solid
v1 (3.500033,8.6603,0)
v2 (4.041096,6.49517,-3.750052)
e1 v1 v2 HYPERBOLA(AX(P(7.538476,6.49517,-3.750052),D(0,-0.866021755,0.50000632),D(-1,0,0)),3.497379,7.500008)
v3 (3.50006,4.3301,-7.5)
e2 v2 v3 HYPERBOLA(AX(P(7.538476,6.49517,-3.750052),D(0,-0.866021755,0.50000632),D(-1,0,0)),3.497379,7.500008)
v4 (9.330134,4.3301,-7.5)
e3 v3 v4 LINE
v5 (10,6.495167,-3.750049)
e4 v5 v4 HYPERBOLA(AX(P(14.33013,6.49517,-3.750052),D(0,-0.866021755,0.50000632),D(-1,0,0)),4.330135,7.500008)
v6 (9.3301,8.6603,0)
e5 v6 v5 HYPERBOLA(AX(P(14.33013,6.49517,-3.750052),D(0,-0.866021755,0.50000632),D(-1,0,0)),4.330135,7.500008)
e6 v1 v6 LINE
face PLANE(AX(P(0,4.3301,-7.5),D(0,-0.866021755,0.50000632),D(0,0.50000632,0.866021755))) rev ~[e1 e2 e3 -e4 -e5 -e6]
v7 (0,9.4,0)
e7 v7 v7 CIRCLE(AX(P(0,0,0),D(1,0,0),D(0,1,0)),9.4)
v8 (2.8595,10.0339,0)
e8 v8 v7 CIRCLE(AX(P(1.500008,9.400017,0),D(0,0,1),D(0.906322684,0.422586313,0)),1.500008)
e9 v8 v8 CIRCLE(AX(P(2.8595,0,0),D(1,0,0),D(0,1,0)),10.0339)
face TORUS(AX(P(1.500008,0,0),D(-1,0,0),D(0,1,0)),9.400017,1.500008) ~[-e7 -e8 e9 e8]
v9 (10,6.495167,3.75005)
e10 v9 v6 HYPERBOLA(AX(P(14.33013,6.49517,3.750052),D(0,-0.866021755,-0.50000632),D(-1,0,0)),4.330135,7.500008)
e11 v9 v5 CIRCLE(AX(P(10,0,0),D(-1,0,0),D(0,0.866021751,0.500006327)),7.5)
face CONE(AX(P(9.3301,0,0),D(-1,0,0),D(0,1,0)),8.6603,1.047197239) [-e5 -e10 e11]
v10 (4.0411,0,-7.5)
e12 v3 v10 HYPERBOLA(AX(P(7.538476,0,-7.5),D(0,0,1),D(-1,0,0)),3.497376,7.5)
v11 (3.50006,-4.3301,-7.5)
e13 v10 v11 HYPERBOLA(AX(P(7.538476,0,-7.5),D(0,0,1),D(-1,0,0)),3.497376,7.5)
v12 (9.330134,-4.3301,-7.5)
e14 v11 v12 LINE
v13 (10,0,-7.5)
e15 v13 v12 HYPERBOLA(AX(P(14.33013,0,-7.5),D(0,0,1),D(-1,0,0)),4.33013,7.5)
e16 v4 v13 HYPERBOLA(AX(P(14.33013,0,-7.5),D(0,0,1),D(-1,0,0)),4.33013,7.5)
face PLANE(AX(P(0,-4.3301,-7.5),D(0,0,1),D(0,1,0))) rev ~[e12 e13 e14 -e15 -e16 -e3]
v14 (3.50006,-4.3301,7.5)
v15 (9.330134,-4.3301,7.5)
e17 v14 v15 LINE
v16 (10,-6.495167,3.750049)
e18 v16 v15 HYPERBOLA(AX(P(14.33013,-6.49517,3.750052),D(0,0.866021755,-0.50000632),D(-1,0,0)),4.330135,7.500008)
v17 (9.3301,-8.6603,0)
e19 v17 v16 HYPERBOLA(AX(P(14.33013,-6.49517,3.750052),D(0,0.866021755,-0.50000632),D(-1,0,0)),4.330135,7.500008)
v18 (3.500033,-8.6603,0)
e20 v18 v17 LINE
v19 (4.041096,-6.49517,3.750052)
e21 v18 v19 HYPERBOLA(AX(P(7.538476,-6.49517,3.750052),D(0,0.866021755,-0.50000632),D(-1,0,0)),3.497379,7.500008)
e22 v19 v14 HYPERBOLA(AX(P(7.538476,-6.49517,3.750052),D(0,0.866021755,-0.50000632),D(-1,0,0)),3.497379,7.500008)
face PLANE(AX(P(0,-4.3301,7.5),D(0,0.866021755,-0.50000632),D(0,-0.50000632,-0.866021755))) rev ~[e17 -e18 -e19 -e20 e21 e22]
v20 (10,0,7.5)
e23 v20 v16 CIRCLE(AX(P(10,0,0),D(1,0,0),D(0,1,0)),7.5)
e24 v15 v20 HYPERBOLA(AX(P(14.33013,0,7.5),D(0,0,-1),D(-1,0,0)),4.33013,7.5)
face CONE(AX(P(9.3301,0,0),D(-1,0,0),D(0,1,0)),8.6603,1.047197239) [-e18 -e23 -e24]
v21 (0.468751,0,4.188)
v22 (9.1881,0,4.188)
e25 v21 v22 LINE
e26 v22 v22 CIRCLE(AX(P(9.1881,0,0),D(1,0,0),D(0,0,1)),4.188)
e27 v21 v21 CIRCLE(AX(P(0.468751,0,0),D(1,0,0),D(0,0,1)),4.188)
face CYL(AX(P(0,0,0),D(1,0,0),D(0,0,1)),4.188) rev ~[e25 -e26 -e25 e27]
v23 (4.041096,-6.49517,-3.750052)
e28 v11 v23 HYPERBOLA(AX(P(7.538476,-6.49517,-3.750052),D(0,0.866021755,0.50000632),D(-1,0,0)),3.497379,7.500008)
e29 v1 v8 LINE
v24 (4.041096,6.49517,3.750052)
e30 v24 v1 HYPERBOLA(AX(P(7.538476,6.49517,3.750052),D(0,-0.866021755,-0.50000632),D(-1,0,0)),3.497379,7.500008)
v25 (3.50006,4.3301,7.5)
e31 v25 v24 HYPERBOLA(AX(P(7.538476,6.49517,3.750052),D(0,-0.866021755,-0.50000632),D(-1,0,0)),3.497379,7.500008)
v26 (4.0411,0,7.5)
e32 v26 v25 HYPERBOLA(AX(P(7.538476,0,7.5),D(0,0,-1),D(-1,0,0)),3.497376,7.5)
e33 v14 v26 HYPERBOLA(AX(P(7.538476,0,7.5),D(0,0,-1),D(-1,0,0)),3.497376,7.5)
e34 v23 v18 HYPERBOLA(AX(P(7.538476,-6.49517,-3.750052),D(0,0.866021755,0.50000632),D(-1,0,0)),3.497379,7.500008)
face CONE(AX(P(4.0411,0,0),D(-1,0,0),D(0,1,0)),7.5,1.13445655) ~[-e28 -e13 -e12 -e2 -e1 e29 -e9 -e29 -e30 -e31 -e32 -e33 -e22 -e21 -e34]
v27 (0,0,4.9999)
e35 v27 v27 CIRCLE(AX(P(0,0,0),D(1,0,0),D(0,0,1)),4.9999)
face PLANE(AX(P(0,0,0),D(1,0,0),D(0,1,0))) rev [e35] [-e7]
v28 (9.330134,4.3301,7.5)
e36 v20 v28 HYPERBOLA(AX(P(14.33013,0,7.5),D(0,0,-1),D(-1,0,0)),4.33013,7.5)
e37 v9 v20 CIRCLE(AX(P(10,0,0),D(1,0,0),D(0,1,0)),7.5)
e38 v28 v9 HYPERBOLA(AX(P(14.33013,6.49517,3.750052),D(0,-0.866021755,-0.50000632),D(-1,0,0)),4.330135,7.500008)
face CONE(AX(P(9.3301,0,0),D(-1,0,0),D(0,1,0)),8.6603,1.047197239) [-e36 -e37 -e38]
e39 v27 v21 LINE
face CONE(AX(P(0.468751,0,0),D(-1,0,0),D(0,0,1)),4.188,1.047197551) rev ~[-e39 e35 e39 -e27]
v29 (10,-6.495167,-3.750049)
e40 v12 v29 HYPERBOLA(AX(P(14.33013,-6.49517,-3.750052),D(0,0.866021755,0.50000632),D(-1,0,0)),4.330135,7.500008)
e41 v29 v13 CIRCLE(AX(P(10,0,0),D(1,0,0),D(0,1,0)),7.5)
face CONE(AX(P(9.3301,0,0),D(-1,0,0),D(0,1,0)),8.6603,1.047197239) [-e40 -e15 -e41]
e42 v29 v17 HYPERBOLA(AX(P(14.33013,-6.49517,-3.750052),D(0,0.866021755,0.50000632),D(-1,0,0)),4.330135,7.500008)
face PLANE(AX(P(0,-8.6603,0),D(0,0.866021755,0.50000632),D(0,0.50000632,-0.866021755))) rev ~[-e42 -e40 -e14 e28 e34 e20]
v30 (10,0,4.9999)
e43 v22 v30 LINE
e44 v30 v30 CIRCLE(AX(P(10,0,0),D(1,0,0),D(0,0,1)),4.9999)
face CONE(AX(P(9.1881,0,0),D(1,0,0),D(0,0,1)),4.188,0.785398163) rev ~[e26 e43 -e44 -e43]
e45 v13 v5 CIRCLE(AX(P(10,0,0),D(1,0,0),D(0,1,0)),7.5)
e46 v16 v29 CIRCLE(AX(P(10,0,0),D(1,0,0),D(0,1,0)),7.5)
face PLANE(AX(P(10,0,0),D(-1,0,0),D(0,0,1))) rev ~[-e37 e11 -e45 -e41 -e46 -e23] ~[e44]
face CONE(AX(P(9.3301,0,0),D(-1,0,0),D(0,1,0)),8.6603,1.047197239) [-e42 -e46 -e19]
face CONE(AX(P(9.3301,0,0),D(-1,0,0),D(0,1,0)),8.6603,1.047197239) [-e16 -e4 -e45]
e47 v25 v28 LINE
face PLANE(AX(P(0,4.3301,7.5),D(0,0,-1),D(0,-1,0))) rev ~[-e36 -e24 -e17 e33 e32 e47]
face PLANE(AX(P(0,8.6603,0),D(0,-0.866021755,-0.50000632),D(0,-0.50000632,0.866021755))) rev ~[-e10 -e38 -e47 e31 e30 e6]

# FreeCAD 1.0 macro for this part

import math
import FreeCAD as App
import Part
import Sketcher
from FreeCAD import Vector
Q = App.Units.Quantity


def edges_at(feature, points):
    """Names of the edges that pass closest to the given points."""
    edges = feature.Shape.Edges
    near = lambda p: min(range(len(edges)), key=lambda i: edges[i].distToShape(Part.Vertex(*p))[0])
    return sorted({f"Edge{near(p) + 1}" for p in points})

doc = App.newDocument("Part")
params = doc.addObject("Spreadsheet::Sheet", "Params")
for row, (alias, value) in enumerate([
    ("sketch1_radius", "1.5 mm"),
    ("sketch1_height", "9.4 mm"),
    ("sketch1_height2", "7.5 mm"),
    ("revolution_angle", "360 deg"),
    ("pad1_length", "10 mm"),
    ("sketch3_width", "0.67 mm"),
    ("groove_angle", "360 deg"),
    ("hole_diameter", "8.376 mm"),
    ("chamfer_size", "0.8119 mm"),
    ("chamfer2_size", "0.8119 mm"),
], start=1):
    params.set(f"A{row}", alias)
    params.set(f"B{row}", "=" + value)
    params.setAlias(f"B{row}", alias)

body = doc.addObject("PartDesign::Body", "Body")

# Sketch on XY plane
sketch1 = body.newObject("Sketcher::SketchObject", "Sketch")
sketch1.AttachmentSupport = (doc.getObject("XY_Plane"), [""])
sketch1.MapMode = "FlatFace"
sketch1.addGeometry(Part.LineSegment(Vector(0, 9.4, 0), Vector(0, 0, 0)), False)
sketch1.addGeometry(Part.LineSegment(Vector(0, 0, 0), Vector(4, 0, 0)), False)
sketch1.addGeometry(Part.LineSegment(Vector(4, 0, 0), Vector(4, 7.5, 0)), False)
sketch1.addGeometry(Part.LineSegment(Vector(4, 7.5, 0), Vector(2.9, 10, 0)), False)
sketch1.addGeometry(Part.ArcOfCircle(Part.Circle(Vector(1.5, 9.4, 0), Vector(0, 0, 1), 1.5), math.radians(25), math.radians(180)), False)
sketch1.addConstraint(Sketcher.Constraint("Coincident", 0, 2, 1, 1))
sketch1.addConstraint(Sketcher.Constraint("Coincident", 1, 2, 2, 1))
sketch1.addConstraint(Sketcher.Constraint("Coincident", 2, 2, 3, 1))
sketch1.addConstraint(Sketcher.Constraint("Tangent", 3, 2, 4, 1))
sketch1.addConstraint(Sketcher.Constraint("Tangent", 4, 2, 0, 1))
sketch1.addConstraint(Sketcher.Constraint("Vertical", 0))
sketch1.addConstraint(Sketcher.Constraint("Horizontal", 1))
sketch1.addConstraint(Sketcher.Constraint("Vertical", 2))
sketch1.addConstraint(Sketcher.Constraint("Coincident", 0, 2, -1, 1))
sketch1.addConstraint(Sketcher.Constraint("Radius", 4, Q("1.5 mm")))
sketch1.addConstraint(Sketcher.Constraint("Angle", 3, Q("115.0004 deg")))
sketch1.addConstraint(Sketcher.Constraint("DistanceY", 0, 2, 0, 1, Q("9.4 mm")))
sketch1.addConstraint(Sketcher.Constraint("DistanceY", 2, 1, 2, 2, Q("7.5 mm")))
sketch1.setExpression("Constraints[9]", "Params.sketch1_radius")
sketch1.setExpression("Constraints[11]", "Params.sketch1_height")
sketch1.setExpression("Constraints[12]", "Params.sketch1_height2")
revolution = body.newObject("PartDesign::Revolution", "Revolution")
revolution.Profile = sketch1
revolution.ReferenceAxis = (sketch1, ["H_Axis"])
revolution.setExpression("Angle", "Params.revolution_angle")

# Sketch on YZ plane
sketch2 = body.newObject("Sketcher::SketchObject", "Sketch001")
sketch2.AttachmentSupport = (doc.getObject("YZ_Plane"), [""])
sketch2.MapMode = "FlatFace"
sketch2.addGeometry(Part.LineSegment(Vector(4, -8, 0), Vector(-4, -8, 0)), False)
sketch2.addGeometry(Part.LineSegment(Vector(-4, -8, 0), Vector(-9, 0, 0)), False)
sketch2.addGeometry(Part.LineSegment(Vector(-9, 0, 0), Vector(-4, 8, 0)), False)
sketch2.addGeometry(Part.LineSegment(Vector(-4, 8, 0), Vector(4, 8, 0)), False)
sketch2.addGeometry(Part.LineSegment(Vector(4, 8, 0), Vector(9, 0, 0)), False)
sketch2.addGeometry(Part.LineSegment(Vector(9, 0, 0), Vector(4, -8, 0)), False)
sketch2.addConstraint(Sketcher.Constraint("Coincident", 0, 2, 1, 1))
sketch2.addConstraint(Sketcher.Constraint("Coincident", 1, 2, 2, 1))
sketch2.addConstraint(Sketcher.Constraint("Coincident", 2, 2, 3, 1))
sketch2.addConstraint(Sketcher.Constraint("Coincident", 3, 2, 4, 1))
sketch2.addConstraint(Sketcher.Constraint("Coincident", 4, 2, 5, 1))
sketch2.addConstraint(Sketcher.Constraint("Coincident", 5, 2, 0, 1))
sketch2.addConstraint(Sketcher.Constraint("Horizontal", 0))
sketch2.addConstraint(Sketcher.Constraint("Horizontal", 3))
sketch2.addConstraint(Sketcher.Constraint("Symmetric", 0, 2, 3, 2, -1, 1))
sketch2.addConstraint(Sketcher.Constraint("Symmetric", 1, 2, 4, 2, -1, 1))
sketch2.addConstraint(Sketcher.Constraint("PointOnObject", 1, 2, -1))
sketch2.addConstraint(Sketcher.Constraint("Parallel", 2, 5))
sketch2.addConstraint(Sketcher.Constraint("Vertical", 0, 2, 2, 2))
sketch2.addConstraint(Sketcher.Constraint("Angle", 1, Q("120.0004 deg")))
sketch2.addConstraint(Sketcher.Constraint("DistanceY", 0, 2, 2, 2, Q("15 mm")))
sketch2.addConstraint(Sketcher.Constraint("DistanceX", 1, 2, 4, 2, Q("17.3206 mm")))
pad1 = body.newObject("PartDesign::Pad", "Pad")
pad1.Profile = sketch2
pad1.setExpression("Length", "Params.pad1_length")

# Sketch on XY plane
sketch3 = body.newObject("Sketcher::SketchObject", "Sketch002")
sketch3.AttachmentSupport = (doc.getObject("XY_Plane"), [""])
sketch3.MapMode = "FlatFace"
sketch3.addGeometry(Part.LineSegment(Vector(10, 8.7, 0), Vector(9.3, 8.7, 0)), False)
sketch3.addGeometry(Part.LineSegment(Vector(9.3, 8.7, 0), Vector(10, 7.5, 0)), False)
sketch3.addGeometry(Part.LineSegment(Vector(10, 7.5, 0), Vector(10, 8.7, 0)), False)
sketch3.addConstraint(Sketcher.Constraint("Coincident", 0, 2, 1, 1))
sketch3.addConstraint(Sketcher.Constraint("Coincident", 1, 2, 2, 1))
sketch3.addConstraint(Sketcher.Constraint("Coincident", 2, 2, 0, 1))
sketch3.addConstraint(Sketcher.Constraint("Horizontal", 0))
sketch3.addConstraint(Sketcher.Constraint("Vertical", 2))
sketch3.addConstraint(Sketcher.Constraint("Angle", 1, Q("-60 deg")))
sketch3.addConstraint(Sketcher.Constraint("DistanceX", -1, 1, 1, 2, Q("10 mm")))
sketch3.addConstraint(Sketcher.Constraint("DistanceX", 0, 2, 0, 1, Q("0.67 mm")))
sketch3.addConstraint(Sketcher.Constraint("DistanceY", -1, 1, 1, 2, Q("7.5 mm")))
sketch3.setExpression("Constraints[7]", "Params.sketch3_width")
groove = body.newObject("PartDesign::Groove", "Groove")
groove.Profile = sketch3
groove.ReferenceAxis = (sketch3, ["H_Axis"])
groove.setExpression("Angle", "Params.groove_angle")

# Sketch on YZ plane
sketch4 = body.newObject("Sketcher::SketchObject", "Sketch003")
sketch4.AttachmentSupport = (doc.getObject("YZ_Plane"), [""])
sketch4.MapMode = "FlatFace"
sketch4.addGeometry(Part.Circle(Vector(0, 0, 0), Vector(0, 0, 1), 4.2), False)
sketch4.addConstraint(Sketcher.Constraint("Coincident", 0, 3, -1, 1))
sketch4.addConstraint(Sketcher.Constraint("Diameter", 0, Q("8.376 mm")))
doc.recompute()
hole = body.newObject("PartDesign::Hole", "Hole")
hole.Profile = sketch4
hole.ThreadType = "None"
hole.setExpression("Diameter", "Params.hole_diameter")
hole.DepthType = "ThroughAll"
hole.Reversed = True
doc.recompute()

chamfer = body.newObject("PartDesign::Chamfer", "Chamfer")
chamfer.Base = (hole, edges_at(hole, [(0, 0, -4.188)]))
chamfer.ChamferType = "Distance and Angle"
chamfer.setExpression("Size", "Params.chamfer_size")
chamfer.Angle = 30
doc.recompute()

chamfer2 = body.newObject("PartDesign::Chamfer", "Chamfer001")
chamfer2.Base = (chamfer, edges_at(chamfer, [(10, 0, -4.188)]))
chamfer2.setExpression("Size", "Params.chamfer2_size")

doc.recompute()
